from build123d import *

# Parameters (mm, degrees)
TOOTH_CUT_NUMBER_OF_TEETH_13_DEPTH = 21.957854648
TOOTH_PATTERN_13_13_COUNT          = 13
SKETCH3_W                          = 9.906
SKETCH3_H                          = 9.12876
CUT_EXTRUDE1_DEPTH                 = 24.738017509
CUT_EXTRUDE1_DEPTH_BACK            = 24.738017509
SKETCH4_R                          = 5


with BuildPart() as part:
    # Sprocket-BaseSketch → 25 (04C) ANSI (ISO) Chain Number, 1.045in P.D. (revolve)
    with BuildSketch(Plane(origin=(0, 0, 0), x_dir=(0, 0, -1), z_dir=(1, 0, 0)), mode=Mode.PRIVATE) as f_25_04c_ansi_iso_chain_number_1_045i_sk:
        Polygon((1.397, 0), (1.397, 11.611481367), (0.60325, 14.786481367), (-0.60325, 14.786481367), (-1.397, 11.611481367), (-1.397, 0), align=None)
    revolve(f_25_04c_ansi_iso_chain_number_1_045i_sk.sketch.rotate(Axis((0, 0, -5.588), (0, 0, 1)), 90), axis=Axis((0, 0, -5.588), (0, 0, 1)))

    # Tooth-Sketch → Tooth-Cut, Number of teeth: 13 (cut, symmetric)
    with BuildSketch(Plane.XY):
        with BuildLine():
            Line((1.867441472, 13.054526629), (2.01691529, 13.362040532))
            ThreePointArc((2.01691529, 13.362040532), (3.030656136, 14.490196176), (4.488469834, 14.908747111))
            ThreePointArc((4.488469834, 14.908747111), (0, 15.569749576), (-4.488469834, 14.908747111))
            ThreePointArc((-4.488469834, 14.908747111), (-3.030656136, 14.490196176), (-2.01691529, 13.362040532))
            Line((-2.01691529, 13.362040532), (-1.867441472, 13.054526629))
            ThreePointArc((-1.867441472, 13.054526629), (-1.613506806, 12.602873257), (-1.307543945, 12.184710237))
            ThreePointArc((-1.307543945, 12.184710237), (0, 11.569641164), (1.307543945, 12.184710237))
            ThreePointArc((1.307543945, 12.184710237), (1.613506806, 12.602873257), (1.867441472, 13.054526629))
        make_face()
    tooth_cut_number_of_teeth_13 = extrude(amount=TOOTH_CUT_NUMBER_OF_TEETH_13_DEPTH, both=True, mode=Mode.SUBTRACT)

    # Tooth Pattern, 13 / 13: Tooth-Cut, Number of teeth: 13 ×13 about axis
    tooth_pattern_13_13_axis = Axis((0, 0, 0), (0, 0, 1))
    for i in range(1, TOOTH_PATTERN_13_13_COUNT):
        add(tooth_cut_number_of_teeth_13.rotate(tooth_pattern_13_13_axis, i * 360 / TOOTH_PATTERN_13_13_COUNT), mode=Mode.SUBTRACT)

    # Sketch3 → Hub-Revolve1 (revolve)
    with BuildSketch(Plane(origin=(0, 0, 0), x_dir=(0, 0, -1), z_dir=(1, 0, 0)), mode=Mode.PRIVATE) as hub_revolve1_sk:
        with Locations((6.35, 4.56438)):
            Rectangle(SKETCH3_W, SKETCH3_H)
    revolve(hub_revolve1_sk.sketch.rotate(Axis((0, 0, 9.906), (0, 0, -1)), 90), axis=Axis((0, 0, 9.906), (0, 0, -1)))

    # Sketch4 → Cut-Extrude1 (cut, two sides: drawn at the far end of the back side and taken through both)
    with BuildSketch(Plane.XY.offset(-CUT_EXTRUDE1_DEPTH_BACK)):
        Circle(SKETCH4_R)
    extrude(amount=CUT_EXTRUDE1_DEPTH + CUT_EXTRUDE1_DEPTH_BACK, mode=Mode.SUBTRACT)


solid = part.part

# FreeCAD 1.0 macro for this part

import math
import FreeCAD as App
import Part
import Sketcher
Q = App.Units.Quantity

doc = App.newDocument("Part")
body = doc.addObject("PartDesign::Body", "Body")

sketch1 = body.newObject("Sketcher::SketchObject", "Sketch")
sketch1.AttachmentSupport = (doc.getObject("YZ_Plane"), [""])
sketch1.MapMode = "FlatFace"
sketch1.addGeometry(Part.LineSegment(App.Vector(0, -1.4, 0), App.Vector(11.6, -1.4, 0)), False)
sketch1.addGeometry(Part.LineSegment(App.Vector(11.6, -1.4, 0), App.Vector(14.8, -0.6, 0)), False)
sketch1.addGeometry(Part.LineSegment(App.Vector(14.8, -0.6, 0), App.Vector(14.8, 0.6, 0)), False)
sketch1.addGeometry(Part.LineSegment(App.Vector(14.8, 0.6, 0), App.Vector(11.6, 1.4, 0)), False)
sketch1.addGeometry(Part.LineSegment(App.Vector(11.6, 1.4, 0), App.Vector(0, 1.4, 0)), False)
sketch1.addGeometry(Part.LineSegment(App.Vector(0, 1.4, 0), App.Vector(0, -1.4, 0)), False)
sketch1.addConstraint(Sketcher.Constraint("Coincident", 0, 2, 1, 1))
sketch1.addConstraint(Sketcher.Constraint("Coincident", 1, 2, 2, 1))
sketch1.addConstraint(Sketcher.Constraint("Coincident", 2, 2, 3, 1))
sketch1.addConstraint(Sketcher.Constraint("Coincident", 3, 2, 4, 1))
sketch1.addConstraint(Sketcher.Constraint("Coincident", 4, 2, 5, 1))
sketch1.addConstraint(Sketcher.Constraint("Coincident", 5, 2, 0, 1))
sketch1.addConstraint(Sketcher.Constraint("Horizontal", 0))
sketch1.addConstraint(Sketcher.Constraint("Vertical", 2))
sketch1.addConstraint(Sketcher.Constraint("Horizontal", 4))
sketch1.addConstraint(Sketcher.Constraint("Vertical", 5))
sketch1.addConstraint(Sketcher.Constraint("Symmetric", 4, 2, 5, 2, -1, 1))
sketch1.addConstraint(Sketcher.Constraint("Vertical", 0, 2, 3, 2))
sketch1.addConstraint(Sketcher.Constraint("Equal", 1, 3))
sketch1.addConstraint(Sketcher.Constraint("DistanceY", 5, 2, 5, 1, Q("0.11 in")))
sketch1.addConstraint(Sketcher.Constraint("DistanceY", 2, 1, 2, 2, Q("0.0475 in")))
sketch1.addConstraint(Sketcher.Constraint("DistanceX", 0, 2, 1, 2, Q("0.125 in")))
sketch1.addConstraint(Sketcher.Constraint("DistanceX", 0, 1, 0, 2, 11.611481))
revolution = body.newObject("PartDesign::Revolution", "Revolution")
revolution.Profile = sketch1
revolution.ReferenceAxis = (sketch1, ["V_Axis"])
revolution.Angle = 360

sketch2 = body.newObject("Sketcher::SketchObject", "Sketch001")
sketch2.AttachmentSupport = (doc.getObject("XY_Plane"), [""])
sketch2.MapMode = "FlatFace"
sketch2.addGeometry(Part.LineSegment(App.Vector(1.87, 13.05, 0), App.Vector(2.02, 13.36, 0)), False)
sketch2.addGeometry(Part.ArcOfCircle(Part.Circle(App.Vector(4.49, 12.16, 0), App.Vector(0, 0, 1), 2.75), math.radians(90), math.radians(154)), False)
sketch2.addGeometry(Part.ArcOfCircle(Part.Circle(App.Vector(0, 0, 0), App.Vector(0, 0, 1), 15.57), math.radians(73), math.radians(107)), False)
sketch2.addGeometry(Part.ArcOfCircle(Part.Circle(App.Vector(-4.49, 12.16, 0), App.Vector(0, 0, 1), 2.75), math.radians(26), math.radians(90)), False)
sketch2.addGeometry(Part.LineSegment(App.Vector(-2.02, 13.36, 0), App.Vector(-1.87, 13.05, 0)), False)
sketch2.addGeometry(Part.ArcOfCircle(Part.Circle(App.Vector(2.03, 14.95, 0), App.Vector(0, 0, 1), 4.34), math.radians(-154.08), math.radians(-140.38)), False)
sketch2.addGeometry(Part.ArcOfCircle(Part.Circle(App.Vector(0, 13.27, 0), App.Vector(0, 0, 1), 1.7), math.radians(-140), math.radians(-40)), False)
sketch2.addGeometry(Part.ArcOfCircle(Part.Circle(App.Vector(-2.03, 14.95, 0), App.Vector(0, 0, 1), 4.34), math.radians(-39.62), math.radians(-25.92)), False)
sketch2.addConstraint(Sketcher.Constraint("Tangent", 0, 2, 1, 2))
sketch2.addConstraint(Sketcher.Constraint("Coincident", 1, 1, 2, 1))
sketch2.addConstraint(Sketcher.Constraint("Coincident", 2, 2, 3, 2))
sketch2.addConstraint(Sketcher.Constraint("Tangent", 3, 1, 4, 1))
sketch2.addConstraint(Sketcher.Constraint("Tangent", 4, 2, 5, 1))
sketch2.addConstraint(Sketcher.Constraint("Tangent", 5, 2, 6, 1))
sketch2.addConstraint(Sketcher.Constraint("Tangent", 6, 2, 7, 1))
sketch2.addConstraint(Sketcher.Constraint("Tangent", 7, 2, 0, 1))
sketch2.addConstraint(Sketcher.Constraint("Coincident", 2, 3, -1, 1))
sketch2.addConstraint(Sketcher.Constraint("Equal", 1, 3))
sketch2.addConstraint(Sketcher.Constraint("Equal", 5, 7))
sketch2.addConstraint(Sketcher.Constraint("Symmetric", 1, 3, 3, 3, -2))
sketch2.addConstraint(Sketcher.Constraint("Symmetric", 5, 3, 7, 3, -2))
sketch2.addConstraint(Sketcher.Constraint("Vertical", 3, 3, 2, 2))
sketch2.addConstraint(Sketcher.Constraint("Radius", 1, 2.748059))
sketch2.addConstraint(Sketcher.Constraint("Radius", 2, 15.56975))
sketch2.addConstraint(Sketcher.Constraint("Radius", 5, 4.338955))
sketch2.addConstraint(Sketcher.Constraint("Radius", 6, 1.697355))
sketch2.addConstraint(Sketcher.Constraint("DistanceX", -1, 1, 1, 3, 4.48847))
sketch2.addConstraint(Sketcher.Constraint("DistanceY", -1, 1, 5, 3, 14.951362))
sketch2.addConstraint(Sketcher.Constraint("DistanceY", -1, 1, 0, 2, 13.362041))
pocket1 = body.newObject("PartDesign::Pocket", "Pocket")
pocket1.Profile = sketch2
pocket1.Length = 43.915709
pocket1.Midplane = True
doc.recompute()

polarpattern = body.newObject("PartDesign::PolarPattern", "PolarPattern")
polarpattern.Originals = [pocket1]
polarpattern.Axis = (doc.getObject("Z_Axis"), [""])
polarpattern.Angle = 360
polarpattern.Occurrences = 13
body.Tip = polarpattern

sketch3 = body.newObject("Sketcher::SketchObject", "Sketch002")
sketch3.AttachmentSupport = (doc.getObject("YZ_Plane"), [""])
sketch3.MapMode = "FlatFace"
sketch3.addGeometry(Part.LineSegment(App.Vector(9, -1, 0), App.Vector(0, -1, 0)), False)
sketch3.addGeometry(Part.LineSegment(App.Vector(0, -1, 0), App.Vector(0, -11, 0)), False)
sketch3.addGeometry(Part.LineSegment(App.Vector(0, -11, 0), App.Vector(9, -11, 0)), False)
sketch3.addGeometry(Part.LineSegment(App.Vector(9, -11, 0), App.Vector(9, -1, 0)), False)
sketch3.addConstraint(Sketcher.Constraint("Coincident", 0, 2, 1, 1))
sketch3.addConstraint(Sketcher.Constraint("Coincident", 1, 2, 2, 1))
sketch3.addConstraint(Sketcher.Constraint("Coincident", 2, 2, 3, 1))
sketch3.addConstraint(Sketcher.Constraint("Coincident", 3, 2, 0, 1))
sketch3.addConstraint(Sketcher.Constraint("Horizontal", 0))
sketch3.addConstraint(Sketcher.Constraint("Vertical", 1))
sketch3.addConstraint(Sketcher.Constraint("Horizontal", 2))
sketch3.addConstraint(Sketcher.Constraint("Vertical", 3))
sketch3.addConstraint(Sketcher.Constraint("PointOnObject", 0, 2, -2))
sketch3.addConstraint(Sketcher.Constraint("DistanceY", 1, 2, 1, 1, Q("0.39 in")))
sketch3.addConstraint(Sketcher.Constraint("DistanceX", 0, 2, 0, 1, Q("0.3594 in")))
sketch3.addConstraint(Sketcher.Constraint("DistanceY", 0, 2, -1, 1, Q("0.055 in")))
revolution2 = body.newObject("PartDesign::Revolution", "Revolution001")
revolution2.Profile = sketch3
revolution2.ReferenceAxis = (sketch3, ["V_Axis"])
revolution2.Angle = 360

sketch4 = body.newObject("Sketcher::SketchObject", "Sketch003")
sketch4.AttachmentSupport = (doc.getObject("XY_Plane"), [""])
sketch4.MapMode = "FlatFace"
sketch4.addGeometry(Part.Circle(App.Vector(0, 0, 0), App.Vector(0, 0, 1), 5), False)
sketch4.addConstraint(Sketcher.Constraint("Coincident", 0, 3, -1, 1))
sketch4.addConstraint(Sketcher.Constraint("Diameter", 0, 10.0))
pocket2 = body.newObject("PartDesign::Pocket", "Pocket001")
pocket2.Profile = sketch4
pocket2.Type = "ThroughAll"
pocket2.Midplane = True

doc.recompute()
